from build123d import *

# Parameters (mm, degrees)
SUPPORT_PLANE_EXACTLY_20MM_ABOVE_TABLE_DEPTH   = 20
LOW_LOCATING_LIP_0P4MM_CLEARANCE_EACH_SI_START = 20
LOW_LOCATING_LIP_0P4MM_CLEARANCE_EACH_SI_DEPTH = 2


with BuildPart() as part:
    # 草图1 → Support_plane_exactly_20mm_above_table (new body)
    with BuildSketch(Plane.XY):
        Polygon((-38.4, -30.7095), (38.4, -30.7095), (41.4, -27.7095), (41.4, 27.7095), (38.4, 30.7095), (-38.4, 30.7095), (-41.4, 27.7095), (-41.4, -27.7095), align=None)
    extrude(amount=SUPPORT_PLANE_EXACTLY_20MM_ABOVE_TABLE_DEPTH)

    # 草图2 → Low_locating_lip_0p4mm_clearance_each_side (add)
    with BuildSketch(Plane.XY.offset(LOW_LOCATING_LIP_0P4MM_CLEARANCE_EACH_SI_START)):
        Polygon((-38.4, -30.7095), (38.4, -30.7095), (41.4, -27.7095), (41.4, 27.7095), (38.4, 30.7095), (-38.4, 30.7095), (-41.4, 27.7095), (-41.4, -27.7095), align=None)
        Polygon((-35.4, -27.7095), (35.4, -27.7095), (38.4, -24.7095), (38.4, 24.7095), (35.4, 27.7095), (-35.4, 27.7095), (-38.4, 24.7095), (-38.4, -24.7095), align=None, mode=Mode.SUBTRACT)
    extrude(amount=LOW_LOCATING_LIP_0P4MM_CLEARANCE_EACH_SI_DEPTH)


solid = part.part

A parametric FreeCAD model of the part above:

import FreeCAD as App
import Part
import Sketcher


def add_polygon(sketch, points):
    """Adds a closed chain of lines whose ends are joined by coincident constraints."""
    first, n = sketch.GeometryCount, len(points)
    for a, b in zip(points, points[1:] + points[:1]):
        sketch.addGeometry(Part.LineSegment(App.Vector(*a, 0), App.Vector(*b, 0)), False)
    for i in range(n):
        sketch.addConstraint(Sketcher.Constraint("Coincident", first + i, 2, first + (i + 1) % n, 1))

doc = App.newDocument("Part")
body = doc.addObject("PartDesign::Body", "Body")

sketch1 = doc.addObject("Sketcher::SketchObject", "Sketch")
body.addObject(sketch1)
sketch1.AttachmentSupport = (doc.XY_Plane, [""])
sketch1.MapMode = "FlatFace"
add_polygon(sketch1, [(-38.4, -30.7), (38.4, -30.7), (41.4, -27.7), (41.4, 27.7), (38.4, 30.7), (-38.4, 30.7), (-41.4, 27.7), (-41.4, -27.7)])
sketch1.addConstraint([
    Sketcher.Constraint("Horizontal", 0),
    Sketcher.Constraint("Vertical", 2),
    Sketcher.Constraint("Horizontal", 4),
    Sketcher.Constraint("Vertical", 6),
    Sketcher.Constraint("Symmetric", 0, 2, 4, 2, -1, 1),
    Sketcher.Constraint("Symmetric", 1, 2, 5, 2, -1, 1),
    Sketcher.Constraint("Perpendicular", 1, 3),
    Sketcher.Constraint("Perpendicular", 5, 7),
    Sketcher.Constraint("Horizontal", 2, 2, 5, 2),
    Sketcher.Constraint("Horizontal", 1, 2, 6, 2),
    Sketcher.Constraint("Vertical", 0, 2, 3, 2),
    Sketcher.Constraint("DistanceX", 0, 1, 0, 2, 76.8),
    Sketcher.Constraint("DistanceX", 0, 2, 1, 2, 3.0),
    Sketcher.Constraint("DistanceY", 2, 1, 2, 2, 55.419),
])
pad1 = doc.addObject("PartDesign::Pad", "Pad")
body.addObject(pad1)
pad1.Profile = sketch1
pad1.Length = 20

sketch2 = doc.addObject("Sketcher::SketchObject", "Sketch001")
body.addObject(sketch2)
sketch2.AttachmentSupport = (doc.XY_Plane, [""])
sketch2.MapMode = "FlatFace"
sketch2.AttachmentOffset = App.Placement(App.Vector(0, 0, 20), App.Rotation())
add_polygon(sketch2, [(-38.4, -30.7), (38.4, -30.7), (41.4, -27.7), (41.4, 27.7), (38.4, 30.7), (-38.4, 30.7), (-41.4, 27.7), (-41.4, -27.7)])
add_polygon(sketch2, [(35.4, -27.7), (-35.4, -27.7), (-38.4, -24.7), (-38.4, 24.7), (-35.4, 27.7), (35.4, 27.7), (38.4, 24.7), (38.4, -24.7)])
sketch2.addConstraint([
    Sketcher.Constraint("Horizontal", 0),
    Sketcher.Constraint("Vertical", 2),
    Sketcher.Constraint("Horizontal", 4),
    Sketcher.Constraint("Vertical", 6),
    Sketcher.Constraint("Horizontal", 8),
    Sketcher.Constraint("Vertical", 10),
    Sketcher.Constraint("Horizontal", 12),
    Sketcher.Constraint("Vertical", 14),
    Sketcher.Constraint("Symmetric", 0, 2, 4, 2, -1, 1),
    Sketcher.Constraint("Symmetric", 1, 2, 5, 2, -1, 1),
    Sketcher.Constraint("Symmetric", 8, 2, 12, 2, -1, 1),
    Sketcher.Constraint("Symmetric", 9, 2, 13, 2, -1, 1),
    Sketcher.Constraint("Perpendicular", 1, 3),
    Sketcher.Constraint("Perpendicular", 5, 7),
    Sketcher.Constraint("Parallel", 7, 9),
    Sketcher.Constraint("Perpendicular", 9, 11),
    Sketcher.Constraint("Perpendicular", 13, 15),
    Sketcher.Constraint("Horizontal", 2, 2, 5, 2),
    Sketcher.Constraint("Horizontal", 1, 2, 6, 2),
    Sketcher.Constraint("Horizontal", 6, 2, 8, 2),
    Sketcher.Constraint("Horizontal", 10, 2, 13, 2),
    Sketcher.Constraint("Horizontal", 9, 2, 14, 2),
    Sketcher.Constraint("Vertical", 0, 2, 3, 2),
    Sketcher.Constraint("Vertical", 7, 2, 9, 2),
    Sketcher.Constraint("Equal", 7, 9),
    Sketcher.Constraint("DistanceX", 0, 1, 0, 2, 76.8),
    Sketcher.Constraint("DistanceX", 8, 2, 8, 1, 70.8),
    Sketcher.Constraint("DistanceY", 2, 1, 2, 2, 55.419),
])
pad2 = doc.addObject("PartDesign::Pad", "Pad001")
body.addObject(pad2)
pad2.Profile = sketch2
pad2.Length = 2

doc.recompute()
